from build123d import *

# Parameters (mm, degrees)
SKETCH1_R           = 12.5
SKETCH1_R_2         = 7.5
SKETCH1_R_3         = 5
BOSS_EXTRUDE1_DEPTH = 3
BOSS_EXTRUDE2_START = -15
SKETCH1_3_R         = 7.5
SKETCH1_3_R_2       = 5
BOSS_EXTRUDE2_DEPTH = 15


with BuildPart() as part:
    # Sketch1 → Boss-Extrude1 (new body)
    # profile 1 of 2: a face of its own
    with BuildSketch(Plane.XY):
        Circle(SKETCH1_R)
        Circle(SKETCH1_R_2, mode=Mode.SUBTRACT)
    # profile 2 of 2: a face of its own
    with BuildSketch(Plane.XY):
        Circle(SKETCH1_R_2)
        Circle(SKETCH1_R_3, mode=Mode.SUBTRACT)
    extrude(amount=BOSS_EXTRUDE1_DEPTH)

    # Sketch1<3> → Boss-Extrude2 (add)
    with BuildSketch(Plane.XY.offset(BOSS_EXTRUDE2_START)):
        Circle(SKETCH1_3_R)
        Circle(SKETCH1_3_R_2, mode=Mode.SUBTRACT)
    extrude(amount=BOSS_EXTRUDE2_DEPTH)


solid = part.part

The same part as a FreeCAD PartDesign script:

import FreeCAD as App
import Part
import Sketcher

doc = App.newDocument("Part")
params = doc.addObject("Spreadsheet::Sheet", "Params")
for row, (alias, value) in enumerate([
    ("sketch1_diameter", "25 mm"),
    ("sketch1_diameter2", "10 mm"),
    ("pad1_length", "3 mm"),
    ("sketch2_diameter", "15 mm"),
    ("sketch2_diameter2", "10 mm"),
    ("pad2_length", "15 mm"),
], start=1):
    params.set(f"A{row}", alias)
    params.set(f"B{row}", "=" + value)
    params.setAlias(f"B{row}", alias)

body = doc.addObject("PartDesign::Body", "Body")

sketch1 = doc.addObject("Sketcher::SketchObject", "Sketch")
body.addObject(sketch1)
sketch1.AttachmentSupport = (doc.XY_Plane, [""])
sketch1.MapMode = "FlatFace"
sketch1.addGeometry([
    Part.Circle(App.Vector(0, 0, 0), App.Vector(0, 0, 1), 12),
    Part.Circle(App.Vector(0, 0, 0), App.Vector(0, 0, 1), 5),
], False)
sketch1.addConstraint([
    Sketcher.Constraint("Coincident", 0, 3, -1, 1),
    Sketcher.Constraint("Coincident", 1, 3, -1, 1),
    Sketcher.Constraint("Diameter", 0, 25.0),
    Sketcher.Constraint("Diameter", 1, 10.0),
])
sketch1.setExpression("Constraints[2]", "Params.sketch1_diameter")
sketch1.setExpression("Constraints[3]", "Params.sketch1_diameter2")
pad1 = doc.addObject("PartDesign::Pad", "Pad")
body.addObject(pad1)
pad1.Profile = sketch1
pad1.setExpression("Length", "Params.pad1_length")

sketch2 = doc.addObject("Sketcher::SketchObject", "Sketch001")
body.addObject(sketch2)
sketch2.AttachmentSupport = (doc.XY_Plane, [""])
sketch2.MapMode = "FlatFace"
sketch2.AttachmentOffset = App.Placement(App.Vector(0, 0, -15), App.Rotation())
sketch2.addGeometry([
    Part.Circle(App.Vector(0, 0, 0), App.Vector(0, 0, 1), 8),
    Part.Circle(App.Vector(0, 0, 0), App.Vector(0, 0, 1), 5),
], False)
sketch2.addConstraint([
    Sketcher.Constraint("Coincident", 0, 3, -1, 1),
    Sketcher.Constraint("Coincident", 1, 3, -1, 1),
    Sketcher.Constraint("Diameter", 0, 15.0),
    Sketcher.Constraint("Diameter", 1, 10.0),
])
sketch2.setExpression("Constraints[2]", "Params.sketch2_diameter")
sketch2.setExpression("Constraints[3]", "Params.sketch2_diameter2")
pad2 = doc.addObject("PartDesign::Pad", "Pad001")
body.addObject(pad2)
pad2.Profile = sketch2
pad2.setExpression("Length", "Params.pad2_length")

doc.recompute()
